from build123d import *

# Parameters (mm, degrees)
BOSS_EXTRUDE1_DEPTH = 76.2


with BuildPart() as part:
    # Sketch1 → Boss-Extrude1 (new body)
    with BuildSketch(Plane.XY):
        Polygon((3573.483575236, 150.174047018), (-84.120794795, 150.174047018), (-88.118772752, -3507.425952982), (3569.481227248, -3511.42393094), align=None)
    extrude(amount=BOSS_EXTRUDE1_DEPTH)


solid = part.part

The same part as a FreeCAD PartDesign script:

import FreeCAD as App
import Part
import Sketcher
Q = App.Units.Quantity

doc = App.newDocument("Part")
params = doc.addObject("Spreadsheet::Sheet", "Params")
for row, (alias, value) in enumerate([
    ("pad1_length", "3 in"),
], start=1):
    params.set(f"A{row}", alias)
    params.set(f"B{row}", "=" + value)
    params.setAlias(f"B{row}", alias)

body = doc.addObject("PartDesign::Body", "Body")

# Sketch on XY plane
sketch1 = body.newObject("Sketcher::SketchObject", "Sketch")
sketch1.AttachmentSupport = (doc.getObject("XY_Plane"), [""])
sketch1.MapMode = "FlatFace"
sketch1.addGeometry([
    Part.LineSegment(App.Vector(3573, 150, 0), App.Vector(-84, 150, 0)),
    Part.LineSegment(App.Vector(-84, 150, 0), App.Vector(-88, -3507, 0)),
    Part.LineSegment(App.Vector(-88, -3507, 0), App.Vector(3569, -3511, 0)),
    Part.LineSegment(App.Vector(3569, -3511, 0), App.Vector(3573, 150, 0)),
], False)
sketch1.addConstraint([
    Sketcher.Constraint("Coincident", 0, 2, 1, 1),
    Sketcher.Constraint("Coincident", 1, 2, 2, 1),
    Sketcher.Constraint("Coincident", 2, 2, 3, 1),
    Sketcher.Constraint("Coincident", 3, 2, 0, 1),
    Sketcher.Constraint("Horizontal", 0),
    Sketcher.Constraint("Perpendicular", 1, 2),
    Sketcher.Constraint("Perpendicular", 2, 3),
    Sketcher.Constraint("Equal", 1, 2),
    Sketcher.Constraint("DistanceY", 1, 2, 0, 2, Q("144 in")),
    Sketcher.Constraint("DistanceY", 2, 2, -1, 1, 3511.423931),
    Sketcher.Constraint("Distance", 3, 3661.600165),
    Sketcher.Constraint("DistanceX", 0, 2, -1, 1, 84.120795),
])
pad1 = body.newObject("PartDesign::Pad", "Pad")
pad1.Profile = sketch1
pad1.setExpression("Length", "Params.pad1_length")

doc.recompute()
